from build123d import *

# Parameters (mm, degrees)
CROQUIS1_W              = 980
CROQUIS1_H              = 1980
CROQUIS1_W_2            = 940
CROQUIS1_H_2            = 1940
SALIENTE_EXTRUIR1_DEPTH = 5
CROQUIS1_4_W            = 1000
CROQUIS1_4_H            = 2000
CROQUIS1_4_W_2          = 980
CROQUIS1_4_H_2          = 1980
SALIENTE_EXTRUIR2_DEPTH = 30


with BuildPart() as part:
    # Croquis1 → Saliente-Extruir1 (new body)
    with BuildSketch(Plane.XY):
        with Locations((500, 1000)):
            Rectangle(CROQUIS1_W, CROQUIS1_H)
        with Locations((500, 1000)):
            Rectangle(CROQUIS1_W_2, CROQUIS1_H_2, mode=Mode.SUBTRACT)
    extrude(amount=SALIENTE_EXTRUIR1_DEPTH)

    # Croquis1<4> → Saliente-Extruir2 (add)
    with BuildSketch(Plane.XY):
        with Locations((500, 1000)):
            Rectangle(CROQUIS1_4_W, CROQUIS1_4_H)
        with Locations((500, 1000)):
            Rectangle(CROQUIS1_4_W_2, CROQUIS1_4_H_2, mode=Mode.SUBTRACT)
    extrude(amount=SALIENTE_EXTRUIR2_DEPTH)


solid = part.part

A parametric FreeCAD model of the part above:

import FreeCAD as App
import Part
import Sketcher

doc = App.newDocument("Part")
body = doc.addObject("PartDesign::Body", "Body")

# Sketch on XY plane
sketch1 = doc.addObject("Sketcher::SketchObject", "Sketch")
body.addObject(sketch1)
sketch1.AttachmentSupport = (doc.XY_Plane, [""])
sketch1.MapMode = "FlatFace"
sketch1.addGeometry([
    Part.LineSegment(App.Vector(10, 1990, 0), App.Vector(10, 10, 0)),  # 0
    Part.LineSegment(App.Vector(10, 10, 0), App.Vector(990, 10, 0)),  # 1
    Part.LineSegment(App.Vector(990, 10, 0), App.Vector(990, 1990, 0)),  # 2
    Part.LineSegment(App.Vector(990, 1990, 0), App.Vector(10, 1990, 0)),  # 3
    Part.LineSegment(App.Vector(970, 30, 0), App.Vector(30, 30, 0)),  # 4
    Part.LineSegment(App.Vector(30, 30, 0), App.Vector(30, 1970, 0)),  # 5
    Part.LineSegment(App.Vector(30, 1970, 0), App.Vector(970, 1970, 0)),  # 6
    Part.LineSegment(App.Vector(970, 1970, 0), App.Vector(970, 30, 0)),  # 7
], False)
sketch1.addConstraint([
    Sketcher.Constraint("Coincident", 0, 2, 1, 1),
    Sketcher.Constraint("Coincident", 1, 2, 2, 1),
    Sketcher.Constraint("Coincident", 2, 2, 3, 1),
    Sketcher.Constraint("Coincident", 3, 2, 0, 1),
    Sketcher.Constraint("Coincident", 4, 2, 5, 1),
    Sketcher.Constraint("Coincident", 5, 2, 6, 1),
    Sketcher.Constraint("Coincident", 6, 2, 7, 1),
    Sketcher.Constraint("Coincident", 7, 2, 4, 1),
    Sketcher.Constraint("Vertical", 0),
    Sketcher.Constraint("Horizontal", 1),
    Sketcher.Constraint("Vertical", 2),
    Sketcher.Constraint("Horizontal", 3),
    Sketcher.Constraint("Horizontal", 4),
    Sketcher.Constraint("Vertical", 5),
    Sketcher.Constraint("Horizontal", 6),
    Sketcher.Constraint("Vertical", 7),
    Sketcher.Constraint("DistanceX", 1, 1, 1, 2, 980.0),
    Sketcher.Constraint("DistanceX", 4, 2, 4, 1, 940.0),
    Sketcher.Constraint("DistanceY", 0, 2, 0, 1, 1980.0),
    Sketcher.Constraint("DistanceY", 5, 1, 5, 2, 1940.0),
    Sketcher.Constraint("DistanceX", -1, 1, 0, 2, 10.0),
    Sketcher.Constraint("DistanceY", -1, 1, 0, 2, 10.0),
    Sketcher.Constraint("DistanceX", -1, 1, 4, 2, 30.0),
    Sketcher.Constraint("DistanceY", -1, 1, 4, 2, 30.0),
])
pad1 = doc.addObject("PartDesign::Pad", "Pad")
body.addObject(pad1)
pad1.Profile = sketch1
pad1.Length = 5

# Sketch on XY plane
sketch2 = doc.addObject("Sketcher::SketchObject", "Sketch001")
body.addObject(sketch2)
sketch2.AttachmentSupport = (doc.XY_Plane, [""])
sketch2.MapMode = "FlatFace"
sketch2.addGeometry([
    Part.LineSegment(App.Vector(0, 2000, 0), App.Vector(0, 0, 0)),  # 0
    Part.LineSegment(App.Vector(0, 0, 0), App.Vector(1000, 0, 0)),  # 1
    Part.LineSegment(App.Vector(1000, 0, 0), App.Vector(1000, 2000, 0)),  # 2
    Part.LineSegment(App.Vector(1000, 2000, 0), App.Vector(0, 2000, 0)),  # 3
    Part.LineSegment(App.Vector(990, 10, 0), App.Vector(10, 10, 0)),  # 4
    Part.LineSegment(App.Vector(10, 10, 0), App.Vector(10, 1990, 0)),  # 5
    Part.LineSegment(App.Vector(10, 1990, 0), App.Vector(990, 1990, 0)),  # 6
    Part.LineSegment(App.Vector(990, 1990, 0), App.Vector(990, 10, 0)),  # 7
], False)
sketch2.addConstraint([
    Sketcher.Constraint("Coincident", 0, 2, 1, 1),
    Sketcher.Constraint("Coincident", 1, 2, 2, 1),
    Sketcher.Constraint("Coincident", 2, 2, 3, 1),
    Sketcher.Constraint("Coincident", 3, 2, 0, 1),
    Sketcher.Constraint("Coincident", 4, 2, 5, 1),
    Sketcher.Constraint("Coincident", 5, 2, 6, 1),
    Sketcher.Constraint("Coincident", 6, 2, 7, 1),
    Sketcher.Constraint("Coincident", 7, 2, 4, 1),
    Sketcher.Constraint("Vertical", 0),
    Sketcher.Constraint("Horizontal", 1),
    Sketcher.Constraint("Vertical", 2),
    Sketcher.Constraint("Horizontal", 3),
    Sketcher.Constraint("Horizontal", 4),
    Sketcher.Constraint("Vertical", 5),
    Sketcher.Constraint("Horizontal", 6),
    Sketcher.Constraint("Vertical", 7),
    Sketcher.Constraint("Coincident", 0, 2, -1, 1),
    Sketcher.Constraint("DistanceX", 1, 1, 1, 2, 1000.0),
    Sketcher.Constraint("DistanceX", 4, 2, 4, 1, 980.0),
    Sketcher.Constraint("DistanceY", 0, 2, 0, 1, 2000.0),
    Sketcher.Constraint("DistanceY", 5, 1, 5, 2, 1980.0),
    Sketcher.Constraint("DistanceX", -1, 1, 4, 2, 10.0),
    Sketcher.Constraint("DistanceY", -1, 1, 4, 2, 10.0),
])
pad2 = doc.addObject("PartDesign::Pad", "Pad001")
body.addObject(pad2)
pad2.Profile = sketch2
pad2.Length = 30

doc.recompute()
